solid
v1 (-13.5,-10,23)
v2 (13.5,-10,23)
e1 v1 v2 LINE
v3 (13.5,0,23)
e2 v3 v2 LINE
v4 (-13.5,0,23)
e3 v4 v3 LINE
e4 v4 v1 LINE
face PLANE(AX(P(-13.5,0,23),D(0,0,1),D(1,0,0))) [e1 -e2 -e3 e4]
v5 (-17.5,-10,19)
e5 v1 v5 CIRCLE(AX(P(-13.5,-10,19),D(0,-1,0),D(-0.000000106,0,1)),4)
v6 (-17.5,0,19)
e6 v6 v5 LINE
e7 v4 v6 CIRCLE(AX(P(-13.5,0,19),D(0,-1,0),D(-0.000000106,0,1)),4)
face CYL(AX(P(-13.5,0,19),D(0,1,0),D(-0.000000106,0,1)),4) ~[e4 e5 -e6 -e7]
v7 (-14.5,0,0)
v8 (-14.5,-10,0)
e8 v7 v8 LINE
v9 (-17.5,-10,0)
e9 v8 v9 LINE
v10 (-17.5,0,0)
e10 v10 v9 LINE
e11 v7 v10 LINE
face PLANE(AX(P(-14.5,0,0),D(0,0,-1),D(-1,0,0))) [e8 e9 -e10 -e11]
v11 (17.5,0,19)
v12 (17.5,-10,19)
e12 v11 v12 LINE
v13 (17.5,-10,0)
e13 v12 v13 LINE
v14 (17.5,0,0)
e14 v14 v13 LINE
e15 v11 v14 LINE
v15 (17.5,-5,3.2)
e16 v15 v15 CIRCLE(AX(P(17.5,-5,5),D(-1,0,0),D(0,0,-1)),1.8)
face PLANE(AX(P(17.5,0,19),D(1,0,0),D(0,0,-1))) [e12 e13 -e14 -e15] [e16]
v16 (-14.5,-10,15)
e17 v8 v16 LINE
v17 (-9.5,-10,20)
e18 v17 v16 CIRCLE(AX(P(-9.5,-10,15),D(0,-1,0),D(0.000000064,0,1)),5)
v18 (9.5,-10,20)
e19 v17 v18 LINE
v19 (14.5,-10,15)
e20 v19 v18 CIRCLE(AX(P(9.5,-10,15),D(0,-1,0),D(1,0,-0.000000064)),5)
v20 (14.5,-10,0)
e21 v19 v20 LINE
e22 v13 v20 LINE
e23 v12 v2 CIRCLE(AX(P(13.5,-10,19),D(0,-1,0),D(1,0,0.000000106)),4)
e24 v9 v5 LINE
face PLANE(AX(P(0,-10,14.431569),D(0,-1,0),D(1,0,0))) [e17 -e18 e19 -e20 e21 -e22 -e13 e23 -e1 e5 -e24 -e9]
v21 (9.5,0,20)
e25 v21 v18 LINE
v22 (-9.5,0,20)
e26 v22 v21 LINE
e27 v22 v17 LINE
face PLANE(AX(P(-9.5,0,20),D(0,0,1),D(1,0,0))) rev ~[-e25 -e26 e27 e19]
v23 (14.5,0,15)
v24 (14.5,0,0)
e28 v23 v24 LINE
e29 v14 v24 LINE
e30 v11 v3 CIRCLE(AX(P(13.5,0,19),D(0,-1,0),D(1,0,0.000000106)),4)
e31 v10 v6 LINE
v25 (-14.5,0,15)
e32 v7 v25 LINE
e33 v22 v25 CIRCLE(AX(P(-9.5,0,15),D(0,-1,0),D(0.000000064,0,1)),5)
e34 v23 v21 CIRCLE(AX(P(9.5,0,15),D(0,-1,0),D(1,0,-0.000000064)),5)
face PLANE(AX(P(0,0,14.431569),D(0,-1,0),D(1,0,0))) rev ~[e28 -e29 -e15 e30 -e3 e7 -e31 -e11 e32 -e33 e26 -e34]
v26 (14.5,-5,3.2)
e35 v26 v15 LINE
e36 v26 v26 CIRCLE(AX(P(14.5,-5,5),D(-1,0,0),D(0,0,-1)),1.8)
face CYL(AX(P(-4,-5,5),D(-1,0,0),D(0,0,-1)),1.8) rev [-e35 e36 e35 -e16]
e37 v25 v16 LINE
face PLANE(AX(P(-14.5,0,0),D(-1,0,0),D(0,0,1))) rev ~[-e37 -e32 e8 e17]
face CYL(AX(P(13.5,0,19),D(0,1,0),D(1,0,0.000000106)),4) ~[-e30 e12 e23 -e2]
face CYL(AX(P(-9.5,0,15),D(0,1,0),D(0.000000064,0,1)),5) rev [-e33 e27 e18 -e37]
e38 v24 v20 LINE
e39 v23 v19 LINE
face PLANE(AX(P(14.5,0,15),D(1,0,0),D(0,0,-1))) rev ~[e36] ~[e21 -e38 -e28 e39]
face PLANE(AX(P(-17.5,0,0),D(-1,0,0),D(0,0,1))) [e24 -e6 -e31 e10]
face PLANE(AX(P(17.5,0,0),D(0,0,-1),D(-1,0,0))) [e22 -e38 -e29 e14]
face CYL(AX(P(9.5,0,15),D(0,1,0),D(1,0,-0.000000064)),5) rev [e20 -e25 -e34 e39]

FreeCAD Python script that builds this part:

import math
import FreeCAD as App
import Part
import Sketcher

doc = App.newDocument("Part")
params = doc.addObject("Spreadsheet::Sheet", "Params")
for row, (alias, value) in enumerate([
    ("sketch1_diameter", "3.6 mm"),
    ("pad1_length", "40 mm"),
    ("sketch2_radius", "5 mm"),
    ("sketch2_radius2", "4 mm"),
    ("sketch2_width", "19 mm"),
    ("sketch2_width2", "3 mm"),
    ("sketch2_height", "15 mm"),
    ("pad2_length", "10 mm"),
], start=1):
    params.set(f"A{row}", alias)
    params.set(f"B{row}", "=" + value)
    params.setAlias(f"B{row}", alias)

body = doc.addObject("PartDesign::Body", "Body")

# Sketch on YZ plane
sketch1 = body.newObject("Sketcher::SketchObject", "Sketch")
sketch1.AttachmentSupport = (doc.getObject("YZ_Plane"), [""])
sketch1.MapMode = "FlatFace"
sketch1.AttachmentOffset = App.Placement(App.Vector(0, 0, -4), App.Rotation())
sketch1.addGeometry(Part.Circle(App.Vector(-5, 5, 0), App.Vector(0, 0, 1), 1.8), False)
sketch1.addConstraint(Sketcher.Constraint("Diameter", 0, 3.6))
sketch1.addConstraint(Sketcher.Constraint("DistanceX", 0, 3, -1, 1, 5.0))
sketch1.addConstraint(Sketcher.Constraint("DistanceY", -1, 1, 0, 3, 5.0))
sketch1.setExpression("Constraints[0]", "Params.sketch1_diameter")
pad1 = body.newObject("PartDesign::Pad", "Pad")
pad1.Profile = sketch1
pad1.setExpression("Length", "Params.pad1_length")
body2 = doc.addObject("PartDesign::Body", "Body001")

# Sketch on XZ plane
sketch2 = body2.newObject("Sketcher::SketchObject", "Sketch001")
sketch2.AttachmentSupport = (doc.getObject("XZ_Plane001"), [""])
sketch2.MapMode = "FlatFace"
sketch2.addGeometry(Part.LineSegment(App.Vector(-14.5, 0, 0), App.Vector(-14.5, 15, 0)), False)
sketch2.addGeometry(Part.ArcOfCircle(Part.Circle(App.Vector(-9.5, 15, 0), App.Vector(0, 0, 1), 5), math.radians(89.999996), math.radians(180.000004)), False)
sketch2.addGeometry(Part.LineSegment(App.Vector(-9.5, 20, 0), App.Vector(9.5, 20, 0)), False)
sketch2.addGeometry(Part.ArcOfCircle(Part.Circle(App.Vector(9.5, 15, 0), App.Vector(0, 0, 1), 5), math.radians(-0.000004), math.radians(90.000004)), False)
sketch2.addGeometry(Part.LineSegment(App.Vector(14.5, 15, 0), App.Vector(14.5, 0, 0)), False)
sketch2.addGeometry(Part.LineSegment(App.Vector(14.5, 0, 0), App.Vector(17.5, 0, 0)), False)
sketch2.addGeometry(Part.LineSegment(App.Vector(17.5, 0, 0), App.Vector(17.5, 19, 0)), False)
sketch2.addGeometry(Part.ArcOfCircle(Part.Circle(App.Vector(13.5, 19, 0), App.Vector(0, 0, 1), 4), math.radians(0.000006), math.radians(89.999994)), False)
sketch2.addGeometry(Part.LineSegment(App.Vector(13.5, 23, 0), App.Vector(-13.5, 23, 0)), False)
sketch2.addGeometry(Part.ArcOfCircle(Part.Circle(App.Vector(-13.5, 19, 0), App.Vector(0, 0, 1), 4), math.radians(90.000006), math.radians(179.999994)), False)
sketch2.addGeometry(Part.LineSegment(App.Vector(-17.5, 19, 0), App.Vector(-17.5, 0, 0)), False)
sketch2.addGeometry(Part.LineSegment(App.Vector(-17.5, 0, 0), App.Vector(-14.5, 0, 0)), False)
sketch2.addConstraint(Sketcher.Constraint("Tangent", 0, 2, 1, 2))
sketch2.addConstraint(Sketcher.Constraint("Tangent", 1, 1, 2, 1))
sketch2.addConstraint(Sketcher.Constraint("Tangent", 2, 2, 3, 2))
sketch2.addConstraint(Sketcher.Constraint("Tangent", 3, 1, 4, 1))
sketch2.addConstraint(Sketcher.Constraint("Coincident", 4, 2, 5, 1))
sketch2.addConstraint(Sketcher.Constraint("Coincident", 5, 2, 6, 1))
sketch2.addConstraint(Sketcher.Constraint("Tangent", 6, 2, 7, 1))
sketch2.addConstraint(Sketcher.Constraint("Tangent", 7, 2, 8, 1))
sketch2.addConstraint(Sketcher.Constraint("Tangent", 8, 2, 9, 1))
sketch2.addConstraint(Sketcher.Constraint("Tangent", 9, 2, 10, 1))
sketch2.addConstraint(Sketcher.Constraint("Coincident", 10, 2, 11, 1))
sketch2.addConstraint(Sketcher.Constraint("Coincident", 11, 2, 0, 1))
sketch2.addConstraint(Sketcher.Constraint("Vertical", 0))
sketch2.addConstraint(Sketcher.Constraint("Horizontal", 2))
sketch2.addConstraint(Sketcher.Constraint("Vertical", 4))
sketch2.addConstraint(Sketcher.Constraint("Horizontal", 5))
sketch2.addConstraint(Sketcher.Constraint("Vertical", 6))
sketch2.addConstraint(Sketcher.Constraint("Horizontal", 8))
sketch2.addConstraint(Sketcher.Constraint("Vertical", 10))
sketch2.addConstraint(Sketcher.Constraint("Horizontal", 11))
sketch2.addConstraint(Sketcher.Constraint("Equal", 1, 3))
sketch2.addConstraint(Sketcher.Constraint("Equal", 7, 9))
sketch2.addConstraint(Sketcher.Constraint("Symmetric", 5, 2, 10, 2, -1, 1))
sketch2.addConstraint(Sketcher.Constraint("Symmetric", 4, 2, 11, 2, -2))
sketch2.addConstraint(Sketcher.Constraint("Equal", 2, 6))
sketch2.addConstraint(Sketcher.Constraint("Radius", 1, 5.0))
sketch2.addConstraint(Sketcher.Constraint("Radius", 7, 4.0))
sketch2.addConstraint(Sketcher.Constraint("DistanceX", 2, 1, 2, 2, 19.0))
sketch2.addConstraint(Sketcher.Constraint("DistanceX", 5, 1, 5, 2, 3.0))
sketch2.addConstraint(Sketcher.Constraint("DistanceY", 0, 1, 0, 2, 15.0))
sketch2.setExpression("Constraints[25]", "Params.sketch2_radius")
sketch2.setExpression("Constraints[26]", "Params.sketch2_radius2")
sketch2.setExpression("Constraints[27]", "Params.sketch2_width")
sketch2.setExpression("Constraints[28]", "Params.sketch2_width2")
sketch2.setExpression("Constraints[29]", "Params.sketch2_height")
pad2 = body2.newObject("PartDesign::Pad", "Pad001")
pad2.Profile = sketch2
pad2.setExpression("Length", "Params.pad2_length")
doc.recompute()

boolean = body2.newObject("PartDesign::Boolean", "Boolean")
boolean.Type = "Cut"
boolean.addObjects([body])

doc.recompute()
